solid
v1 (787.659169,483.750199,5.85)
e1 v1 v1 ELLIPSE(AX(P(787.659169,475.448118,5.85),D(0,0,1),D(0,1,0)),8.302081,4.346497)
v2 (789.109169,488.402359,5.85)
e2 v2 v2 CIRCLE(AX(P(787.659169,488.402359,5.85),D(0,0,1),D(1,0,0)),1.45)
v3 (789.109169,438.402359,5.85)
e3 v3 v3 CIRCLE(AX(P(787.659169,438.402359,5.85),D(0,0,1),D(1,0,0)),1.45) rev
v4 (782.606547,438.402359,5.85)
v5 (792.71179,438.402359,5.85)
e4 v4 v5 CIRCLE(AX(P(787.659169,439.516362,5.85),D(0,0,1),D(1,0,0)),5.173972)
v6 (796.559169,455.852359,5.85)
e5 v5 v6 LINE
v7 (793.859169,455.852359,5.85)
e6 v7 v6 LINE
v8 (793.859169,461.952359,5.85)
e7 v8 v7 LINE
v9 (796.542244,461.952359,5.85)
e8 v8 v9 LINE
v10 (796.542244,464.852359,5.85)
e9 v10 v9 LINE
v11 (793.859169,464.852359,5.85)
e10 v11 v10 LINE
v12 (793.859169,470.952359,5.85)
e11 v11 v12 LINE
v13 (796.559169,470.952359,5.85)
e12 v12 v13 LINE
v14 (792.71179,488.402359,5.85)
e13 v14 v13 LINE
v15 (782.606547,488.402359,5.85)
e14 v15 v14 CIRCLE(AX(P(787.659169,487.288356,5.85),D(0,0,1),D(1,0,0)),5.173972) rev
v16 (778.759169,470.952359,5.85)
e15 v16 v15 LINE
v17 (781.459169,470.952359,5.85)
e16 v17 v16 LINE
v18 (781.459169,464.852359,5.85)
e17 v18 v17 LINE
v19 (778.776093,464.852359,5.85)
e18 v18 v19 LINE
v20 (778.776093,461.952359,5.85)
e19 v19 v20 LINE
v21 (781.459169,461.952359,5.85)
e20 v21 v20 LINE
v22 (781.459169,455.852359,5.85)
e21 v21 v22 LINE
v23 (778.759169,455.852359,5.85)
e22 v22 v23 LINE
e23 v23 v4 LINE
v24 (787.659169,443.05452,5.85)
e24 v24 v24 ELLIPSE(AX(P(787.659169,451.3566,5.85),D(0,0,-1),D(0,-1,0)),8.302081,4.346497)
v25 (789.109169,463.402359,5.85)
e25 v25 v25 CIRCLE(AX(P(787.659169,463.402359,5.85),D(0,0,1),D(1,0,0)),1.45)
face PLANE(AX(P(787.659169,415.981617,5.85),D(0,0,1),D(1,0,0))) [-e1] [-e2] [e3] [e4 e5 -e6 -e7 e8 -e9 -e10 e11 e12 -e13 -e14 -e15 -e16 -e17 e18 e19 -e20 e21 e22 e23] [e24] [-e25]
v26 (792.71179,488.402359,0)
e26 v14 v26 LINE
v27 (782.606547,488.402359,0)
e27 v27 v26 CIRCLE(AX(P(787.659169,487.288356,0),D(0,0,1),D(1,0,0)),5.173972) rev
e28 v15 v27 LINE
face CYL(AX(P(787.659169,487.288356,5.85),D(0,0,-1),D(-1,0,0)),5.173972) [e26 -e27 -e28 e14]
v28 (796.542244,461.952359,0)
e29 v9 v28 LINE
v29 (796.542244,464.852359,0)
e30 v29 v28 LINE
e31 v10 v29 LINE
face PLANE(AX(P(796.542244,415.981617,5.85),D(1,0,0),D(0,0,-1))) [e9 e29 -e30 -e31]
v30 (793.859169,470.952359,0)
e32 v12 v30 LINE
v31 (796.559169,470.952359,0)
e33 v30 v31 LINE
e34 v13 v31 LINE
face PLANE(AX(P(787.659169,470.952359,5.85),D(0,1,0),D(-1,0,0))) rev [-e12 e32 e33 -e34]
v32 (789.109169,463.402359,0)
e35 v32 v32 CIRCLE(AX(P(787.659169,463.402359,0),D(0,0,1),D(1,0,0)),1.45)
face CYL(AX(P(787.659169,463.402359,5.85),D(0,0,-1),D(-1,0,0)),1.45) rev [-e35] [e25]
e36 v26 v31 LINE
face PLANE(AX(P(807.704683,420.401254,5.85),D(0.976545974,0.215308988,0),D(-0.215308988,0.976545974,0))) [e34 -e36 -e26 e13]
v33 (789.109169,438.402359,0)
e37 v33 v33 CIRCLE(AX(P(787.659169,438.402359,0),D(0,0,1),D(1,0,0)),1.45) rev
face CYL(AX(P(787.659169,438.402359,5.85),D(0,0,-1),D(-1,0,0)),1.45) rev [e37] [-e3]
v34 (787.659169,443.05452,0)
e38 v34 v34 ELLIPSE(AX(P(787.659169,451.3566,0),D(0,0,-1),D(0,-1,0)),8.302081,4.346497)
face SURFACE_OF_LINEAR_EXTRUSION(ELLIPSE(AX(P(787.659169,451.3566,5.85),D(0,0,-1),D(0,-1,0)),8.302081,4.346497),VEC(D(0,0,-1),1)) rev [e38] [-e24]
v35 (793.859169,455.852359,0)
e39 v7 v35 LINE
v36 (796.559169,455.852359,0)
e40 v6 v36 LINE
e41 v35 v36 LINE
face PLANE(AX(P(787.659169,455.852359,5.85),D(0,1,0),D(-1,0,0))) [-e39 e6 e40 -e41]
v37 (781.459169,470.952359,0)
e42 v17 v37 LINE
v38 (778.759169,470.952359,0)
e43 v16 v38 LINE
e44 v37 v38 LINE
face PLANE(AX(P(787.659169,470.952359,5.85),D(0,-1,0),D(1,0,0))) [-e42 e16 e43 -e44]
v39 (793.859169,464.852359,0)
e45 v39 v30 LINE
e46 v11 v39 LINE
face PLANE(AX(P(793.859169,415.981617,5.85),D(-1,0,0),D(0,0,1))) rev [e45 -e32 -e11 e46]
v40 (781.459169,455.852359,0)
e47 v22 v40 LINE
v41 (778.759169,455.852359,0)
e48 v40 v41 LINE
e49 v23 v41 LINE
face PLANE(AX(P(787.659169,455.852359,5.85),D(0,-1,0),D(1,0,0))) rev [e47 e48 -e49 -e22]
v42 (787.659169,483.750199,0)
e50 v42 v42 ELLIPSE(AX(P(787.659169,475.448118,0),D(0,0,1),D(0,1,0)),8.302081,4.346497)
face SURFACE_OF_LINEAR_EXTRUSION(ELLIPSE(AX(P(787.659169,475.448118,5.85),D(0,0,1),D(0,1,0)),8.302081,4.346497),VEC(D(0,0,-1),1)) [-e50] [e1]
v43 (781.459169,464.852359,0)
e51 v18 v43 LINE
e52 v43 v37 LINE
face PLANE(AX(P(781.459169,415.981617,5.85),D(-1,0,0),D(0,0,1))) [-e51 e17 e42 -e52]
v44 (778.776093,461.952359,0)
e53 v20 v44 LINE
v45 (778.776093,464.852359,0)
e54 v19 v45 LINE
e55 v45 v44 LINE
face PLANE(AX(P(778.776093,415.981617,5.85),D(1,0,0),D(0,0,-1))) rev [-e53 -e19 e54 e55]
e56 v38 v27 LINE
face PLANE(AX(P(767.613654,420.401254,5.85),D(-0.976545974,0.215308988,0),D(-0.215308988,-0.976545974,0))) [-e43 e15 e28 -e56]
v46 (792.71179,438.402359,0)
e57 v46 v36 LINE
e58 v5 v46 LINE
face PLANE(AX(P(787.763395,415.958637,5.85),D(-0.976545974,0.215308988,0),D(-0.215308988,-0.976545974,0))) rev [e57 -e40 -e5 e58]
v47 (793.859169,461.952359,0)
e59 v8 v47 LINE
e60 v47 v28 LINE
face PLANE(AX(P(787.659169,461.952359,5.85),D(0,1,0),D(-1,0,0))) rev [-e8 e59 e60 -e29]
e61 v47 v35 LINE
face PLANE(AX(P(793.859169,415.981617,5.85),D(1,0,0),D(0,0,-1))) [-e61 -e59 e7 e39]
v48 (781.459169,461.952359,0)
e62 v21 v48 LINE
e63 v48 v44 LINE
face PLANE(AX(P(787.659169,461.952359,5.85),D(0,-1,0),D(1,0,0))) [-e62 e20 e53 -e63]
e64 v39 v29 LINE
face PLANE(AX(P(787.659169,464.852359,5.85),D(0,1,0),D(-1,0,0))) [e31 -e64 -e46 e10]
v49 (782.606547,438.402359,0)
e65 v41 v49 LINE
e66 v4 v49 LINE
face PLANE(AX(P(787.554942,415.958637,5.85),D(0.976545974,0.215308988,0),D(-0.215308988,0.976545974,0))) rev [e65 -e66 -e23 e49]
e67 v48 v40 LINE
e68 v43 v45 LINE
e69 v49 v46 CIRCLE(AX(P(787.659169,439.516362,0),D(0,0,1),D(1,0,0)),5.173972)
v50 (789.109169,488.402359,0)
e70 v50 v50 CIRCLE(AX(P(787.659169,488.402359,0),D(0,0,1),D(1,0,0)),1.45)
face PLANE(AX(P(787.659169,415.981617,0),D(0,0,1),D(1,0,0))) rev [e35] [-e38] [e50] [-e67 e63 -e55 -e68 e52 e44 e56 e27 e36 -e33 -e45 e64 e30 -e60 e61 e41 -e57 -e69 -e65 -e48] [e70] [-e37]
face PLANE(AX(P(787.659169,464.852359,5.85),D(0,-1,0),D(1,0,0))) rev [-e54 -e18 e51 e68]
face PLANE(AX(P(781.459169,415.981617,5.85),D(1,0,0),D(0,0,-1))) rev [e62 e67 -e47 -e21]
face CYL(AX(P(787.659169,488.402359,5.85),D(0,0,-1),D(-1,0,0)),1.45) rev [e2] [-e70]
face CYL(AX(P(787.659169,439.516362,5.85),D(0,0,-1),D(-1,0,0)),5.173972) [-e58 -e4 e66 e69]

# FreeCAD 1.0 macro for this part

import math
import FreeCAD as App
import Part
import Sketcher

V = App.Vector

doc = App.newDocument("Part")
body = doc.addObject("PartDesign::Body", "Body")

# Sketch on XY plane
sketch1 = body.newObject("Sketcher::SketchObject", "Sketch")
sketch1.AttachmentSupport = (doc.getObject("XY_Plane"), [""])
sketch1.MapMode = "FlatFace"
sketch1.addGeometry(Part.LineSegment(V(781.459169, 464.852359, 0), V(778.776093, 464.852359, 0)), False)
sketch1.addGeometry(Part.LineSegment(V(778.776093, 464.852359, 0), V(778.776093, 461.952359, 0)), False)
sketch1.addGeometry(Part.LineSegment(V(778.776093, 461.952359, 0), V(781.459169, 461.952359, 0)), False)
sketch1.addGeometry(Part.LineSegment(V(781.459169, 461.952359, 0), V(781.459169, 455.852359, 0)), False)
sketch1.addGeometry(Part.LineSegment(V(781.459169, 455.852359, 0), V(778.759169, 455.852359, 0)), False)
sketch1.addGeometry(Part.LineSegment(V(778.759169, 455.852359, 0), V(782.606547, 438.402359, 0)), False)
sketch1.addGeometry(Part.ArcOfCircle(Part.Circle(V(787.659169, 439.516362, 0), V(0, 0, 1), 5.173972), math.radians(-167.566344), math.radians(-12.433656)), False)
sketch1.addGeometry(Part.LineSegment(V(792.71179, 438.402359, 0), V(796.559169, 455.852359, 0)), False)
sketch1.addGeometry(Part.LineSegment(V(796.559169, 455.852359, 0), V(793.859169, 455.852359, 0)), False)
sketch1.addGeometry(Part.LineSegment(V(793.859169, 455.852359, 0), V(793.859169, 461.952359, 0)), False)
sketch1.addGeometry(Part.LineSegment(V(793.859169, 461.952359, 0), V(796.542244, 461.952359, 0)), False)
sketch1.addGeometry(Part.LineSegment(V(796.542244, 461.952359, 0), V(796.542244, 464.852359, 0)), False)
sketch1.addGeometry(Part.LineSegment(V(796.542244, 464.852359, 0), V(793.859169, 464.852359, 0)), False)
sketch1.addGeometry(Part.LineSegment(V(793.859169, 464.852359, 0), V(793.859169, 470.952359, 0)), False)
sketch1.addGeometry(Part.LineSegment(V(793.859169, 470.952359, 0), V(796.559169, 470.952359, 0)), False)
sketch1.addGeometry(Part.LineSegment(V(796.559169, 470.952359, 0), V(792.71179, 488.402359, 0)), False)
sketch1.addGeometry(Part.ArcOfCircle(Part.Circle(V(787.659169, 487.288356, 0), V(0, 0, 1), 5.173972), math.radians(12.433656), math.radians(167.566344)), False)
sketch1.addGeometry(Part.LineSegment(V(782.606547, 488.402359, 0), V(778.759169, 470.952359, 0)), False)
sketch1.addGeometry(Part.LineSegment(V(778.759169, 470.952359, 0), V(781.459169, 470.952359, 0)), False)
sketch1.addGeometry(Part.LineSegment(V(781.459169, 470.952359, 0), V(781.459169, 464.852359, 0)), False)
sketch1.addGeometry(Part.Circle(V(787.659169, 438.402359, 0), V(0, 0, 1), 1.45), False)
sketch1.addGeometry(Part.Ellipse(V(787.659169, 443.05452, 0), V(792.005666, 451.3566, 0), V(787.659169, 451.3566, 0)), False)
sketch1.addGeometry(Part.Circle(V(787.659169, 463.402359, 0), V(0, 0, 1), 1.45), False)
sketch1.addGeometry(Part.Ellipse(V(787.659169, 483.750199, 0), V(783.312671, 475.448118, 0), V(787.659169, 475.448118, 0)), False)
sketch1.addGeometry(Part.Circle(V(787.659169, 488.402359, 0), V(0, 0, 1), 1.45), False)
sketch1.addConstraint(Sketcher.Constraint("Block", 21))
sketch1.addConstraint(Sketcher.Constraint("Block", 23))
sketch1.addConstraint(Sketcher.Constraint("Coincident", 0, 2, 1, 1))
sketch1.addConstraint(Sketcher.Constraint("Coincident", 1, 2, 2, 1))
sketch1.addConstraint(Sketcher.Constraint("Coincident", 2, 2, 3, 1))
sketch1.addConstraint(Sketcher.Constraint("Coincident", 3, 2, 4, 1))
sketch1.addConstraint(Sketcher.Constraint("Coincident", 4, 2, 5, 1))
sketch1.addConstraint(Sketcher.Constraint("Tangent", 5, 2, 6, 1))
sketch1.addConstraint(Sketcher.Constraint("Tangent", 6, 2, 7, 1))
sketch1.addConstraint(Sketcher.Constraint("Coincident", 7, 2, 8, 1))
sketch1.addConstraint(Sketcher.Constraint("Coincident", 8, 2, 9, 1))
sketch1.addConstraint(Sketcher.Constraint("Coincident", 9, 2, 10, 1))
sketch1.addConstraint(Sketcher.Constraint("Coincident", 10, 2, 11, 1))
sketch1.addConstraint(Sketcher.Constraint("Coincident", 11, 2, 12, 1))
sketch1.addConstraint(Sketcher.Constraint("Coincident", 12, 2, 13, 1))
sketch1.addConstraint(Sketcher.Constraint("Coincident", 13, 2, 14, 1))
sketch1.addConstraint(Sketcher.Constraint("Coincident", 14, 2, 15, 1))
sketch1.addConstraint(Sketcher.Constraint("Tangent", 15, 2, 16, 1))
sketch1.addConstraint(Sketcher.Constraint("Tangent", 16, 2, 17, 1))
sketch1.addConstraint(Sketcher.Constraint("Coincident", 17, 2, 18, 1))
sketch1.addConstraint(Sketcher.Constraint("Coincident", 18, 2, 19, 1))
sketch1.addConstraint(Sketcher.Constraint("Coincident", 19, 2, 0, 1))
sketch1.addConstraint(Sketcher.Constraint("Horizontal", 0))
sketch1.addConstraint(Sketcher.Constraint("Vertical", 1))
sketch1.addConstraint(Sketcher.Constraint("Horizontal", 2))
sketch1.addConstraint(Sketcher.Constraint("Vertical", 3))
sketch1.addConstraint(Sketcher.Constraint("Horizontal", 4))
sketch1.addConstraint(Sketcher.Constraint("Horizontal", 8))
sketch1.addConstraint(Sketcher.Constraint("Vertical", 9))
sketch1.addConstraint(Sketcher.Constraint("Horizontal", 10))
sketch1.addConstraint(Sketcher.Constraint("Vertical", 11))
sketch1.addConstraint(Sketcher.Constraint("Horizontal", 12))
sketch1.addConstraint(Sketcher.Constraint("Vertical", 13))
sketch1.addConstraint(Sketcher.Constraint("Horizontal", 14))
sketch1.addConstraint(Sketcher.Constraint("Horizontal", 18))
sketch1.addConstraint(Sketcher.Constraint("Vertical", 19))
sketch1.addConstraint(Sketcher.Constraint("Equal", 6, 16))
sketch1.addConstraint(Sketcher.Constraint("Equal", 20, 22))
sketch1.addConstraint(Sketcher.Constraint("Equal", 22, 24))
sketch1.addConstraint(Sketcher.Constraint("Parallel", 5, 15))
sketch1.addConstraint(Sketcher.Constraint("Parallel", 7, 17))
sketch1.addConstraint(Sketcher.Constraint("Horizontal", 20, 3, 5, 2))
sketch1.addConstraint(Sketcher.Constraint("Horizontal", 5, 2, 6, 2))
sketch1.addConstraint(Sketcher.Constraint("Horizontal", 4, 2, 7, 2))
sketch1.addConstraint(Sketcher.Constraint("Horizontal", 2, 2, 9, 2))
sketch1.addConstraint(Sketcher.Constraint("Horizontal", 0, 2, 11, 2))
sketch1.addConstraint(Sketcher.Constraint("Horizontal", 24, 3, 15, 2))
sketch1.addConstraint(Sketcher.Constraint("Horizontal", 14, 2, 17, 2))
sketch1.addConstraint(Sketcher.Constraint("Vertical", 6, 3, 16, 3))
sketch1.addConstraint(Sketcher.Constraint("Vertical", 16, 3, 20, 3))
sketch1.addConstraint(Sketcher.Constraint("Vertical", 20, 3, 22, 3))
sketch1.addConstraint(Sketcher.Constraint("Vertical", 22, 3, 24, 3))
sketch1.addConstraint(Sketcher.Constraint("Vertical", 9, 2, 12, 2))
sketch1.addConstraint(Sketcher.Constraint("Vertical", 7, 2, 14, 2))
sketch1.addConstraint(Sketcher.Constraint("Vertical", 3, 2, 18, 2))
sketch1.addConstraint(Sketcher.Constraint("Equal", 4, 8))
sketch1.addConstraint(Sketcher.Constraint("Equal", 2, 10))
sketch1.addConstraint(Sketcher.Constraint("Equal", 9, 13))
sketch1.addConstraint(Sketcher.Constraint("Diameter", 20, 2.9))
sketch1.addConstraint(Sketcher.Constraint("DistanceX", 4, 2, 4, 1, 2.7))
sketch1.addConstraint(Sketcher.Constraint("DistanceY", 1, 2, 1, 1, 2.9))
sketch1.addConstraint(Sketcher.Constraint("DistanceY", 3, 2, 3, 1, 6.1))
sketch1.addConstraint(Sketcher.Constraint("DistanceY", 20, 3, 22, 3, 25.0))
sketch1.addConstraint(Sketcher.Constraint("DistanceY", 22, 3, 24, 3, 25.0))
sketch1.addConstraint(Sketcher.Constraint("DistanceX", 2, 2, 22, 3, 6.2))
sketch1.addConstraint(Sketcher.Constraint("Radius", 6, 5.173972))
sketch1.addConstraint(Sketcher.Constraint("DistanceX", 0, 2, 0, 1, 2.683076))
sketch1.addConstraint(Sketcher.Constraint("DistanceX", -1, 1, 6, 3, 787.659169))
sketch1.addConstraint(Sketcher.Constraint("DistanceY", -1, 1, 6, 3, 439.516362))
pad1 = body.newObject("PartDesign::Pad", "Pad")
pad1.Profile = sketch1
pad1.Length = 5.85

doc.recompute()
